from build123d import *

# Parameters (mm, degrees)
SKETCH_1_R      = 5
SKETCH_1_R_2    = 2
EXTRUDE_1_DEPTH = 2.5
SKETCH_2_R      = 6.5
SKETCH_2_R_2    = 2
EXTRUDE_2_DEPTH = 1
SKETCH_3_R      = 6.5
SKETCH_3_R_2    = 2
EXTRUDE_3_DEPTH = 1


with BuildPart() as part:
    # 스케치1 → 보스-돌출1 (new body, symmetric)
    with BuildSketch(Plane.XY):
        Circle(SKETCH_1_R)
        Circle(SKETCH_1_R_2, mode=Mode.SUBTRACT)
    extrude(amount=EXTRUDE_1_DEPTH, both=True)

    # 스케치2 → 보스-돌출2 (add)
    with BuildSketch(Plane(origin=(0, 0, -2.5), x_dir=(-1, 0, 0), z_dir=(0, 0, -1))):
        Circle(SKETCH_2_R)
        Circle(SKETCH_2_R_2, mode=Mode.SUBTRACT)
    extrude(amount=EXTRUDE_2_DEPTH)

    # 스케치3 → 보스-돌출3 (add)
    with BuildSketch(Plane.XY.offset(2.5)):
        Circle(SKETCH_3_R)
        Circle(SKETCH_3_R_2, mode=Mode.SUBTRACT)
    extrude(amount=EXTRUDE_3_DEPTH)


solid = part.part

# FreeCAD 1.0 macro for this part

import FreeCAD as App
import Part
import Sketcher

doc = App.newDocument("Part")
body = doc.addObject("PartDesign::Body", "Body")

# Sketch on XY plane
sketch1 = body.newObject("Sketcher::SketchObject", "Sketch")
sketch1.AttachmentSupport = (doc.getObject("XY_Plane"), [""])
sketch1.MapMode = "FlatFace"
sketch1.addGeometry([
    Part.Circle(App.Vector(0, 0, 0), App.Vector(0, 0, 1), 5),
    Part.Circle(App.Vector(0, 0, 0), App.Vector(0, 0, 1), 2),
], False)
sketch1.addConstraint([
    Sketcher.Constraint("Coincident", 0, 3, -1, 1),
    Sketcher.Constraint("Coincident", 1, 3, -1, 1),
    Sketcher.Constraint("Diameter", 0, 10.0),
    Sketcher.Constraint("Diameter", 1, 4.0),
])
pad1 = body.newObject("PartDesign::Pad", "Pad")
pad1.Profile = sketch1
pad1.Length = 5
pad1.Midplane = True

# Sketch on XY plane
sketch2 = body.newObject("Sketcher::SketchObject", "Sketch001")
sketch2.AttachmentSupport = (doc.getObject("XY_Plane"), [""])
sketch2.MapMode = "FlatFace"
sketch2.AttachmentOffset = App.Placement(App.Vector(0, 0, -2.5), App.Rotation())
sketch2.addGeometry([
    Part.Circle(App.Vector(0, 0, 0), App.Vector(0, 0, 1), 6.5),
    Part.Circle(App.Vector(0, 0, 0), App.Vector(0, 0, 1), 2),
], False)
sketch2.addConstraint([
    Sketcher.Constraint("Coincident", 0, 3, -1, 1),
    Sketcher.Constraint("Coincident", 1, 3, -1, 1),
    Sketcher.Constraint("Diameter", 0, 13.0),
    Sketcher.Constraint("Diameter", 1, 4.0),
])
pad2 = body.newObject("PartDesign::Pad", "Pad001")
pad2.Profile = sketch2
pad2.Length = 1
pad2.Reversed = True

# Sketch on XY plane
sketch3 = body.newObject("Sketcher::SketchObject", "Sketch002")
sketch3.AttachmentSupport = (doc.getObject("XY_Plane"), [""])
sketch3.MapMode = "FlatFace"
sketch3.AttachmentOffset = App.Placement(App.Vector(0, 0, 2.5), App.Rotation())
sketch3.addGeometry([
    Part.Circle(App.Vector(0, 0, 0), App.Vector(0, 0, 1), 6.5),
    Part.Circle(App.Vector(0, 0, 0), App.Vector(0, 0, 1), 2),
], False)
sketch3.addConstraint([
    Sketcher.Constraint("Coincident", 0, 3, -1, 1),
    Sketcher.Constraint("Coincident", 1, 3, -1, 1),
    Sketcher.Constraint("Diameter", 0, 13.0),
    Sketcher.Constraint("Diameter", 1, 4.0),
])
pad3 = body.newObject("PartDesign::Pad", "Pad002")
pad3.Profile = sketch3
pad3.Length = 1

doc.recompute()
